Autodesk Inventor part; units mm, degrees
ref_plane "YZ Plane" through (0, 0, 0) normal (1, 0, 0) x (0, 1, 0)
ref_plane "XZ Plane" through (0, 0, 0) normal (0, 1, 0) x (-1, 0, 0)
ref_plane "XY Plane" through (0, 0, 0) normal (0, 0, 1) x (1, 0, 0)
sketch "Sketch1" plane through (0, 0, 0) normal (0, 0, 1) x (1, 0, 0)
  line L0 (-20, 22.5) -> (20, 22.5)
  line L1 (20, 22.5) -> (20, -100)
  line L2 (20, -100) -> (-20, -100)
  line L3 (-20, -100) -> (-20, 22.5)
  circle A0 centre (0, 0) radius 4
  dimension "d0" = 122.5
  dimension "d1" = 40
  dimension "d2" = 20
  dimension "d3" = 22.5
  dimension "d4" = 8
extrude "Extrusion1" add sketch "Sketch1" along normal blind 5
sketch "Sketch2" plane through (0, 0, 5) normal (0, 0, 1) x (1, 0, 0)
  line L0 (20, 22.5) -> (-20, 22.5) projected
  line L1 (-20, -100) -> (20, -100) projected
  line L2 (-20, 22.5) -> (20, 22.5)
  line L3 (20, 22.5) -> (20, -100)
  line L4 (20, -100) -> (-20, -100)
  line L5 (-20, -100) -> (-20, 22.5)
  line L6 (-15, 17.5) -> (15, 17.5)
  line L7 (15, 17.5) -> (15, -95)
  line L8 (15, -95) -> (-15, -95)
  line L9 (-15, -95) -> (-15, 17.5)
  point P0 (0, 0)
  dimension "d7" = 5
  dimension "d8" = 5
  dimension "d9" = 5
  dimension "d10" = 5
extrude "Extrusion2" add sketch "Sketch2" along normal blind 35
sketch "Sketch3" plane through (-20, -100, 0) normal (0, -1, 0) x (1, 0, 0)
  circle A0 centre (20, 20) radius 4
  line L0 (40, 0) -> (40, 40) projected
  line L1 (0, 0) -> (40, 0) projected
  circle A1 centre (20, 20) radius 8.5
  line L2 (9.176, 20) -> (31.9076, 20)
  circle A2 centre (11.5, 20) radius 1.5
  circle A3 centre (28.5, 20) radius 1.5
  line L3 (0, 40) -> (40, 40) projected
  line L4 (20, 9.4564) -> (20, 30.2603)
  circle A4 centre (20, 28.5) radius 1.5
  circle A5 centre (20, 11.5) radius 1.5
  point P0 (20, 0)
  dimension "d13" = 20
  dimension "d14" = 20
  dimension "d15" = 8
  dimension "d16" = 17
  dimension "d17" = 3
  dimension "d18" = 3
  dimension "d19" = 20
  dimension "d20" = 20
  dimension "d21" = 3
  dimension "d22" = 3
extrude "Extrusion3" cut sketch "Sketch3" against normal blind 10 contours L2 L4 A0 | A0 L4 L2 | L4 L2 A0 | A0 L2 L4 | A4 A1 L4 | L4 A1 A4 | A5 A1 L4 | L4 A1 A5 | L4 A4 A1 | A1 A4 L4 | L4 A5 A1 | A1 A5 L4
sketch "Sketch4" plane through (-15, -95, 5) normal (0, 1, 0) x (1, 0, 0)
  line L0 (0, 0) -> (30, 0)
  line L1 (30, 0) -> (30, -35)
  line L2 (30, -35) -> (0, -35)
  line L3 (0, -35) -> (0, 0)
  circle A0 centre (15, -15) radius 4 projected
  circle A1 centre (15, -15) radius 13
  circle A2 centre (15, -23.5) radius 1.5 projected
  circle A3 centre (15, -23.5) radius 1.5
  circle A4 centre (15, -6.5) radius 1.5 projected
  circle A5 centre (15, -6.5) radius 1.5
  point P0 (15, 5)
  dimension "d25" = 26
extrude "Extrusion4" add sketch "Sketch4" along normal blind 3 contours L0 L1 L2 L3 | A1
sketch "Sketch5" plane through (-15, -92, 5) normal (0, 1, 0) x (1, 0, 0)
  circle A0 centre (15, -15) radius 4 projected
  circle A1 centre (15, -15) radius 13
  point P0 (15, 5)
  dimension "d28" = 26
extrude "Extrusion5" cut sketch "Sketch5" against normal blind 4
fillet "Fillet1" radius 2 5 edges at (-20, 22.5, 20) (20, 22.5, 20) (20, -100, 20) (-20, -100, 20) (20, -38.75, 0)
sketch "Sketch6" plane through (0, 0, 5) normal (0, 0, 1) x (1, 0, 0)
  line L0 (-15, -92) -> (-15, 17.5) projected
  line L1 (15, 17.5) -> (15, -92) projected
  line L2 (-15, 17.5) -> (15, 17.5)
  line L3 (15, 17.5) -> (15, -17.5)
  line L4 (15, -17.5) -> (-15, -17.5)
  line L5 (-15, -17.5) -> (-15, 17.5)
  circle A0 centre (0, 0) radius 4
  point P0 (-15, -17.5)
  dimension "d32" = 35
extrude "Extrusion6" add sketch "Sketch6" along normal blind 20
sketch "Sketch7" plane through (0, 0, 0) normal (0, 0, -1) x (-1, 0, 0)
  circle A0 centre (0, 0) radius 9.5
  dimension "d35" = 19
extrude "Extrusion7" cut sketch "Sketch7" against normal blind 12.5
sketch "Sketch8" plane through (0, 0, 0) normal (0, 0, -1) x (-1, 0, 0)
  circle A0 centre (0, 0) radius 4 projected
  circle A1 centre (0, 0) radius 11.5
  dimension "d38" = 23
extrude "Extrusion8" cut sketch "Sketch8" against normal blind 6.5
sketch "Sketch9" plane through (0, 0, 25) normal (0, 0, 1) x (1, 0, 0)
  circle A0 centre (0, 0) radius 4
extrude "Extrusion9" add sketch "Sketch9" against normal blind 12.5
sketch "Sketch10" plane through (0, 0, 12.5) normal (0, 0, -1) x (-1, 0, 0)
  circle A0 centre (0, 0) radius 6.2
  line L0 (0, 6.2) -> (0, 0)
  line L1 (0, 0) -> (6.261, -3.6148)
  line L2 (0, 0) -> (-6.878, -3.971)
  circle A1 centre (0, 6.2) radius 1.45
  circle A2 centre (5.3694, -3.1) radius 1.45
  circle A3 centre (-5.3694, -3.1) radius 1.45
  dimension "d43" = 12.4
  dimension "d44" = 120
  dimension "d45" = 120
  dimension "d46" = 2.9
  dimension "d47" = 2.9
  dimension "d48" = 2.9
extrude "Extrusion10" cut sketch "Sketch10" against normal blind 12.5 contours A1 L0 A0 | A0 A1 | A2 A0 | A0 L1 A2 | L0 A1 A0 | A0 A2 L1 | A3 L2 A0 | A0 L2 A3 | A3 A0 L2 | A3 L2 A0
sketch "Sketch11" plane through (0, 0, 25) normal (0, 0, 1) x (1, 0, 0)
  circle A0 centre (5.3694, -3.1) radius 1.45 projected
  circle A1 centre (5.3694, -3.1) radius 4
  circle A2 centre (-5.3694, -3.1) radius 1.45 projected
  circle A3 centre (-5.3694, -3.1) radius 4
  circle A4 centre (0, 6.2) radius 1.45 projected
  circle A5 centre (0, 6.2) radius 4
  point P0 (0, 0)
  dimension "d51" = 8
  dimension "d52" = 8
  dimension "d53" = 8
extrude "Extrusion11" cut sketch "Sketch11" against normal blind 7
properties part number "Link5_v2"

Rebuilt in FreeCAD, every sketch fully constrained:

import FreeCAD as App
import Part
import Sketcher

V = App.Vector


def edges_at(feature, points):
    """Names of the edges that pass closest to the given points."""
    edges = feature.Shape.Edges
    near = lambda p: min(range(len(edges)), key=lambda i: edges[i].distToShape(Part.Vertex(*p))[0])
    return sorted({f"Edge{near(p) + 1}" for p in points})

doc = App.newDocument("Part")
body = doc.addObject("PartDesign::Body", "Body")

# Sketch on XY plane
sketch1 = body.newObject("Sketcher::SketchObject", "Sketch")
sketch1.AttachmentSupport = (doc.getObject("XY_Plane"), [""])
sketch1.MapMode = "FlatFace"
sketch1.addGeometry(Part.LineSegment(V(20, 22.5, 0), V(-20, 22.5, 0)), False)
sketch1.addGeometry(Part.LineSegment(V(-20, 22.5, 0), V(-20, -100, 0)), False)
sketch1.addGeometry(Part.LineSegment(V(-20, -100, 0), V(20, -100, 0)), False)
sketch1.addGeometry(Part.LineSegment(V(20, -100, 0), V(20, 22.5, 0)), False)
sketch1.addGeometry(Part.Circle(V(0, 0, 0), V(0, 0, 1), 4), False)
sketch1.addConstraint(Sketcher.Constraint("Coincident", 0, 2, 1, 1))
sketch1.addConstraint(Sketcher.Constraint("Coincident", 1, 2, 2, 1))
sketch1.addConstraint(Sketcher.Constraint("Coincident", 2, 2, 3, 1))
sketch1.addConstraint(Sketcher.Constraint("Coincident", 3, 2, 0, 1))
sketch1.addConstraint(Sketcher.Constraint("Horizontal", 0))
sketch1.addConstraint(Sketcher.Constraint("Vertical", 1))
sketch1.addConstraint(Sketcher.Constraint("Horizontal", 2))
sketch1.addConstraint(Sketcher.Constraint("Vertical", 3))
sketch1.addConstraint(Sketcher.Constraint("Coincident", 4, 3, -1, 1))
sketch1.addConstraint(Sketcher.Constraint("Diameter", 4, 8.0))
sketch1.addConstraint(Sketcher.Constraint("DistanceX", 0, 2, 0, 1, 40.0))
sketch1.addConstraint(Sketcher.Constraint("DistanceY", 1, 2, 1, 1, 122.5))
sketch1.addConstraint(Sketcher.Constraint("DistanceX", 0, 2, -1, 1, 20.0))
sketch1.addConstraint(Sketcher.Constraint("DistanceY", -1, 1, 0, 2, 22.5))
pad1 = body.newObject("PartDesign::Pad", "Pad")
pad1.Profile = sketch1
pad1.Length = 5

# Sketch on XY plane
sketch2 = body.newObject("Sketcher::SketchObject", "Sketch001")
sketch2.AttachmentSupport = (doc.getObject("XY_Plane"), [""])
sketch2.MapMode = "FlatFace"
sketch2.AttachmentOffset = App.Placement(V(0, 0, 5), App.Rotation())
sketch2.addGeometry(Part.LineSegment(V(20, -100, 0), V(20, 22, 0)), False)
sketch2.addGeometry(Part.LineSegment(V(20, 22, 0), V(-20, 22, 0)), False)
sketch2.addGeometry(Part.LineSegment(V(-20, 22, 0), V(-20, -100, 0)), False)
sketch2.addGeometry(Part.LineSegment(V(-20, -100, 0), V(20, -100, 0)), False)
sketch2.addGeometry(Part.LineSegment(V(-15, -95, 0), V(-15, 18, 0)), False)
sketch2.addGeometry(Part.LineSegment(V(-15, 18, 0), V(15, 18, 0)), False)
sketch2.addGeometry(Part.LineSegment(V(15, 18, 0), V(15, -95, 0)), False)
sketch2.addGeometry(Part.LineSegment(V(15, -95, 0), V(-15, -95, 0)), False)
sketch2.addConstraint(Sketcher.Constraint("Coincident", 0, 2, 1, 1))
sketch2.addConstraint(Sketcher.Constraint("Coincident", 1, 2, 2, 1))
sketch2.addConstraint(Sketcher.Constraint("Coincident", 2, 2, 3, 1))
sketch2.addConstraint(Sketcher.Constraint("Coincident", 3, 2, 0, 1))
sketch2.addConstraint(Sketcher.Constraint("Coincident", 4, 2, 5, 1))
sketch2.addConstraint(Sketcher.Constraint("Coincident", 5, 2, 6, 1))
sketch2.addConstraint(Sketcher.Constraint("Coincident", 6, 2, 7, 1))
sketch2.addConstraint(Sketcher.Constraint("Coincident", 7, 2, 4, 1))
sketch2.addConstraint(Sketcher.Constraint("Vertical", 0))
sketch2.addConstraint(Sketcher.Constraint("Horizontal", 1))
sketch2.addConstraint(Sketcher.Constraint("Vertical", 2))
sketch2.addConstraint(Sketcher.Constraint("Horizontal", 3))
sketch2.addConstraint(Sketcher.Constraint("Vertical", 4))
sketch2.addConstraint(Sketcher.Constraint("Horizontal", 5))
sketch2.addConstraint(Sketcher.Constraint("Vertical", 6))
sketch2.addConstraint(Sketcher.Constraint("Horizontal", 7))
sketch2.addConstraint(Sketcher.Constraint("DistanceX", 1, 2, 4, 2, 5.0))
sketch2.addConstraint(Sketcher.Constraint("DistanceY", 4, 2, 1, 2, 5.0))
sketch2.addConstraint(Sketcher.Constraint("DistanceX", 5, 2, 0, 2, 5.0))
sketch2.addConstraint(Sketcher.Constraint("DistanceY", 3, 2, 6, 2, 5.0))
sketch2.addConstraint(Sketcher.Constraint("DistanceX", 1, 2, 1, 1, 40.0))
sketch2.addConstraint(Sketcher.Constraint("DistanceY", 0, 1, 0, 2, 122.5))
sketch2.addConstraint(Sketcher.Constraint("DistanceX", -1, 1, 0, 2, 20.0))
sketch2.addConstraint(Sketcher.Constraint("DistanceY", 2, 2, -1, 1, 100.0))
pad2 = body.newObject("PartDesign::Pad", "Pad001")
pad2.Profile = sketch2
pad2.Length = 35

# Sketch on XZ plane
sketch3 = body.newObject("Sketcher::SketchObject", "Sketch002")
sketch3.AttachmentSupport = (doc.getObject("XZ_Plane"), [""])
sketch3.MapMode = "FlatFace"
sketch3.AttachmentOffset = App.Placement(V(0, 0, 100), App.Rotation())
sketch3.addGeometry(Part.Circle(V(0, 20, 0), V(0, 0, 1), 4), False)
sketch3.addGeometry(Part.Circle(V(0, 28.5, 0), V(0, 0, 1), 1.5), False)
sketch3.addGeometry(Part.Circle(V(0, 11.5, 0), V(0, 0, 1), 1.5), False)
sketch3.addConstraint(Sketcher.Constraint("Equal", 1, 2))
sketch3.addConstraint(Sketcher.Constraint("PointOnObject", 0, 3, -2))
sketch3.addConstraint(Sketcher.Constraint("PointOnObject", 1, 3, -2))
sketch3.addConstraint(Sketcher.Constraint("PointOnObject", 2, 3, -2))
sketch3.addConstraint(Sketcher.Constraint("Diameter", 0, 8.0))
sketch3.addConstraint(Sketcher.Constraint("Diameter", 1, 3.0))
sketch3.addConstraint(Sketcher.Constraint("DistanceY", -1, 1, 0, 3, 20.0))
sketch3.addConstraint(Sketcher.Constraint("DistanceY", 2, 3, 1, 3, 17.0))
sketch3.addConstraint(Sketcher.Constraint("DistanceY", -1, 1, 1, 3, 28.5))
pocket1 = body.newObject("PartDesign::Pocket", "Pocket")
pocket1.Profile = sketch3
pocket1.Length = 10

# Sketch on XZ plane
sketch4 = body.newObject("Sketcher::SketchObject", "Sketch003")
sketch4.AttachmentSupport = (doc.getObject("XZ_Plane"), [""])
sketch4.MapMode = "FlatFace"
sketch4.AttachmentOffset = App.Placement(V(0, 0, 95), App.Rotation())
sketch4.addGeometry(Part.LineSegment(V(15, 5, 0), V(-15, 5, 0)), False)
sketch4.addGeometry(Part.LineSegment(V(-15, 5, 0), V(-15, 40, 0)), False)
sketch4.addGeometry(Part.LineSegment(V(-15, 40, 0), V(15, 40, 0)), False)
sketch4.addGeometry(Part.LineSegment(V(15, 40, 0), V(15, 5, 0)), False)
sketch4.addGeometry(Part.Circle(V(0, 11.5, 0), V(0, 0, 1), 1.5), False)
sketch4.addGeometry(Part.Circle(V(0, 28.5, 0), V(0, 0, 1), 1.5), False)
sketch4.addGeometry(Part.Circle(V(0, 20, 0), V(0, 0, 1), 4), False)
sketch4.addConstraint(Sketcher.Constraint("Coincident", 0, 2, 1, 1))
sketch4.addConstraint(Sketcher.Constraint("Coincident", 1, 2, 2, 1))
sketch4.addConstraint(Sketcher.Constraint("Coincident", 2, 2, 3, 1))
sketch4.addConstraint(Sketcher.Constraint("Coincident", 3, 2, 0, 1))
sketch4.addConstraint(Sketcher.Constraint("Horizontal", 0))
sketch4.addConstraint(Sketcher.Constraint("Vertical", 1))
sketch4.addConstraint(Sketcher.Constraint("Horizontal", 2))
sketch4.addConstraint(Sketcher.Constraint("Vertical", 3))
sketch4.addConstraint(Sketcher.Constraint("Equal", 4, 5))
sketch4.addConstraint(Sketcher.Constraint("PointOnObject", 4, 3, -2))
sketch4.addConstraint(Sketcher.Constraint("PointOnObject", 5, 3, -2))
sketch4.addConstraint(Sketcher.Constraint("PointOnObject", 6, 3, -2))
sketch4.addConstraint(Sketcher.Constraint("Diameter", 4, 3.0))
sketch4.addConstraint(Sketcher.Constraint("Diameter", 6, 8.0))
sketch4.addConstraint(Sketcher.Constraint("DistanceX", 0, 2, 0, 1, 30.0))
sketch4.addConstraint(Sketcher.Constraint("DistanceY", 1, 1, 1, 2, 35.0))
sketch4.addConstraint(Sketcher.Constraint("DistanceY", -1, 1, 6, 3, 20.0))
sketch4.addConstraint(Sketcher.Constraint("DistanceX", 0, 2, -1, 1, 15.0))
sketch4.addConstraint(Sketcher.Constraint("DistanceY", -1, 1, 0, 2, 5.0))
sketch4.addConstraint(Sketcher.Constraint("DistanceY", 4, 3, 5, 3, 17.0))
sketch4.addConstraint(Sketcher.Constraint("DistanceY", -1, 1, 4, 3, 11.5))
pad3 = body.newObject("PartDesign::Pad", "Pad002")
pad3.Profile = sketch4
pad3.Length = 3
pad3.Reversed = True

# Sketch on XZ plane
sketch5 = body.newObject("Sketcher::SketchObject", "Sketch004")
sketch5.AttachmentSupport = (doc.getObject("XZ_Plane"), [""])
sketch5.MapMode = "FlatFace"
sketch5.AttachmentOffset = App.Placement(V(0, 0, 92), App.Rotation())
sketch5.addGeometry(Part.Circle(V(0, 20, 0), V(0, 0, 1), 13), False)
sketch5.addGeometry(Part.Circle(V(0, 20, 0), V(0, 0, 1), 4), False)
sketch5.addConstraint(Sketcher.Constraint("Coincident", 1, 3, 0, 3))
sketch5.addConstraint(Sketcher.Constraint("PointOnObject", 0, 3, -2))
sketch5.addConstraint(Sketcher.Constraint("Diameter", 0, 26.0))
sketch5.addConstraint(Sketcher.Constraint("Diameter", 1, 8.0))
sketch5.addConstraint(Sketcher.Constraint("DistanceY", -1, 1, 0, 3, 20.0))
pocket2 = body.newObject("PartDesign::Pocket", "Pocket001")
pocket2.Profile = sketch5
pocket2.Length = 4
pocket2.Reversed = True
doc.recompute()

fillet = body.newObject("PartDesign::Fillet", "Fillet")
fillet.Base = (pocket2, edges_at(pocket2, [
    (-20, 22.5, 20),
    (20, 22.5, 20),
    (20, -100, 20),
    (-20, -100, 20),
    (20, -38.75, 0),
]))
fillet.Radius = 2

# Sketch on XY plane
sketch6 = body.newObject("Sketcher::SketchObject", "Sketch005")
sketch6.AttachmentSupport = (doc.getObject("XY_Plane"), [""])
sketch6.MapMode = "FlatFace"
sketch6.AttachmentOffset = App.Placement(V(0, 0, 5), App.Rotation())
sketch6.addGeometry(Part.LineSegment(V(-15, 17.5, 0), V(-15, -17.5, 0)), False)
sketch6.addGeometry(Part.LineSegment(V(-15, -17.5, 0), V(15, -17.5, 0)), False)
sketch6.addGeometry(Part.LineSegment(V(15, -17.5, 0), V(15, 17.5, 0)), False)
sketch6.addGeometry(Part.LineSegment(V(15, 17.5, 0), V(-15, 17.5, 0)), False)
sketch6.addGeometry(Part.Circle(V(0, 0, 0), V(0, 0, 1), 4), False)
sketch6.addConstraint(Sketcher.Constraint("Coincident", 0, 2, 1, 1))
sketch6.addConstraint(Sketcher.Constraint("Coincident", 1, 2, 2, 1))
sketch6.addConstraint(Sketcher.Constraint("Coincident", 2, 2, 3, 1))
sketch6.addConstraint(Sketcher.Constraint("Coincident", 3, 2, 0, 1))
sketch6.addConstraint(Sketcher.Constraint("Vertical", 0))
sketch6.addConstraint(Sketcher.Constraint("Horizontal", 1))
sketch6.addConstraint(Sketcher.Constraint("Vertical", 2))
sketch6.addConstraint(Sketcher.Constraint("Horizontal", 3))
sketch6.addConstraint(Sketcher.Constraint("Coincident", 4, 3, -1, 1))
sketch6.addConstraint(Sketcher.Constraint("Symmetric", 0, 2, 2, 2, -1, 1))
sketch6.addConstraint(Sketcher.Constraint("DistanceY", 0, 2, 0, 1, 35.0))
sketch6.addConstraint(Sketcher.Constraint("Diameter", 4, 8.0))
sketch6.addConstraint(Sketcher.Constraint("DistanceX", 1, 1, 1, 2, 30.0))
pad4 = body.newObject("PartDesign::Pad", "Pad003")
pad4.Profile = sketch6
pad4.Length = 20

# Sketch on XY plane
sketch7 = body.newObject("Sketcher::SketchObject", "Sketch006")
sketch7.AttachmentSupport = (doc.getObject("XY_Plane"), [""])
sketch7.MapMode = "FlatFace"
sketch7.addGeometry(Part.Circle(V(0, 0, 0), V(0, 0, 1), 10), False)
sketch7.addConstraint(Sketcher.Constraint("Coincident", 0, 3, -1, 1))
sketch7.addConstraint(Sketcher.Constraint("Diameter", 0, 19.0))
pocket3 = body.newObject("PartDesign::Pocket", "Pocket002")
pocket3.Profile = sketch7
pocket3.Length = 12.5
pocket3.Reversed = True

# Sketch on XY plane
sketch8 = body.newObject("Sketcher::SketchObject", "Sketch007")
sketch8.AttachmentSupport = (doc.getObject("XY_Plane"), [""])
sketch8.MapMode = "FlatFace"
sketch8.addGeometry(Part.Circle(V(0, 0, 0), V(0, 0, 1), 11.5), False)
sketch8.addGeometry(Part.Circle(V(0, 0, 0), V(0, 0, 1), 4), False)
sketch8.addConstraint(Sketcher.Constraint("Coincident", 0, 3, -1, 1))
sketch8.addConstraint(Sketcher.Constraint("Coincident", 1, 3, -1, 1))
sketch8.addConstraint(Sketcher.Constraint("Diameter", 0, 23.0))
sketch8.addConstraint(Sketcher.Constraint("Diameter", 1, 8.0))
pocket4 = body.newObject("PartDesign::Pocket", "Pocket003")
pocket4.Profile = sketch8
pocket4.Length = 6.5
pocket4.Reversed = True

# Sketch on XY plane
sketch9 = body.newObject("Sketcher::SketchObject", "Sketch008")
sketch9.AttachmentSupport = (doc.getObject("XY_Plane"), [""])
sketch9.MapMode = "FlatFace"
sketch9.AttachmentOffset = App.Placement(V(0, 0, 25), App.Rotation())
sketch9.addGeometry(Part.Circle(V(0, 0, 0), V(0, 0, 1), 4), False)
sketch9.addConstraint(Sketcher.Constraint("Coincident", 0, 3, -1, 1))
sketch9.addConstraint(Sketcher.Constraint("Diameter", 0, 8.0))
pad5 = body.newObject("PartDesign::Pad", "Pad004")
pad5.Profile = sketch9
pad5.Length = 12.5
pad5.Reversed = True

# Sketch on XY plane
sketch10 = body.newObject("Sketcher::SketchObject", "Sketch009")
sketch10.AttachmentSupport = (doc.getObject("XY_Plane"), [""])
sketch10.MapMode = "FlatFace"
sketch10.AttachmentOffset = App.Placement(V(0, 0, 12.5), App.Rotation())
sketch10.addGeometry(Part.Circle(V(0, 6.2, 0), V(0, 0, 1), 1.4), False)
sketch10.addGeometry(Part.Circle(V(-5.4, -3.1, 0), V(0, 0, 1), 1.4), False)
sketch10.addGeometry(Part.Circle(V(5.4, -3.1, 0), V(0, 0, 1), 1.4), False)
sketch10.addConstraint(Sketcher.Constraint("Equal", 0, 1))
sketch10.addConstraint(Sketcher.Constraint("Equal", 1, 2))
sketch10.addConstraint(Sketcher.Constraint("Symmetric", 1, 3, 2, 3, -2))
sketch10.addConstraint(Sketcher.Constraint("PointOnObject", 0, 3, -2))
sketch10.addConstraint(Sketcher.Constraint("Diameter", 0, 2.9))
sketch10.addConstraint(Sketcher.Constraint("DistanceY", -1, 1, 0, 3, 6.2))
sketch10.addConstraint(Sketcher.Constraint("DistanceY", 1, 3, -1, 1, 3.1))
sketch10.addConstraint(Sketcher.Constraint("DistanceX", 1, 3, -1, 1, 5.3694))
pocket5 = body.newObject("PartDesign::Pocket", "Pocket004")
pocket5.Profile = sketch10
pocket5.Length = 12.5
pocket5.Reversed = True

# Sketch on XY plane
sketch11 = body.newObject("Sketcher::SketchObject", "Sketch010")
sketch11.AttachmentSupport = (doc.getObject("XY_Plane"), [""])
sketch11.MapMode = "FlatFace"
sketch11.AttachmentOffset = App.Placement(V(0, 0, 25), App.Rotation())
sketch11.addGeometry(Part.Circle(V(5.4, -3.1, 0), V(0, 0, 1), 4), False)
sketch11.addGeometry(Part.Circle(V(5.4, -3.1, 0), V(0, 0, 1), 1.4), False)
sketch11.addGeometry(Part.Circle(V(-5.4, -3.1, 0), V(0, 0, 1), 4), False)
sketch11.addGeometry(Part.Circle(V(-5.4, -3.1, 0), V(0, 0, 1), 1.4), False)
sketch11.addGeometry(Part.Circle(V(0, 6.2, 0), V(0, 0, 1), 4), False)
sketch11.addGeometry(Part.Circle(V(0, 6.2, 0), V(0, 0, 1), 1.4), False)
sketch11.addConstraint(Sketcher.Constraint("Coincident", 1, 3, 0, 3))
sketch11.addConstraint(Sketcher.Constraint("Coincident", 3, 3, 2, 3))
sketch11.addConstraint(Sketcher.Constraint("Coincident", 5, 3, 4, 3))
sketch11.addConstraint(Sketcher.Constraint("Equal", 0, 2))
sketch11.addConstraint(Sketcher.Constraint("Equal", 1, 3))
sketch11.addConstraint(Sketcher.Constraint("Equal", 2, 4))
sketch11.addConstraint(Sketcher.Constraint("Equal", 3, 5))
sketch11.addConstraint(Sketcher.Constraint("Symmetric", 0, 3, 2, 3, -2))
sketch11.addConstraint(Sketcher.Constraint("PointOnObject", 4, 3, -2))
sketch11.addConstraint(Sketcher.Constraint("Diameter", 0, 8.0))
sketch11.addConstraint(Sketcher.Constraint("Diameter", 1, 2.9))
sketch11.addConstraint(Sketcher.Constraint("DistanceY", 0, 3, -1, 1, 3.1))
sketch11.addConstraint(Sketcher.Constraint("DistanceY", -1, 1, 4, 3, 6.2))
sketch11.addConstraint(Sketcher.Constraint("DistanceX", -1, 1, 0, 3, 5.3694))
pocket6 = body.newObject("PartDesign::Pocket", "Pocket005")
pocket6.Profile = sketch11
pocket6.Length = 7

doc.recompute()
